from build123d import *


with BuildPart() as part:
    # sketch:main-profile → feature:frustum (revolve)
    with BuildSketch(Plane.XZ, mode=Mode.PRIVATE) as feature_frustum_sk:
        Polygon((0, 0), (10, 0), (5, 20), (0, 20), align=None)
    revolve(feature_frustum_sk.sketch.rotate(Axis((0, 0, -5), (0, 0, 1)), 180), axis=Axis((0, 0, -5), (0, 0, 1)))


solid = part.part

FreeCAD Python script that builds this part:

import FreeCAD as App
import Part
import Sketcher


def add_polygon(sketch, points):
    """Adds a closed chain of lines whose ends are joined by coincident constraints."""
    first, n = sketch.GeometryCount, len(points)
    for a, b in zip(points, points[1:] + points[:1]):
        sketch.addGeometry(Part.LineSegment(App.Vector(*a, 0), App.Vector(*b, 0)), False)
    for i in range(n):
        sketch.addConstraint(Sketcher.Constraint("Coincident", first + i, 2, first + (i + 1) % n, 1))

doc = App.newDocument("Part")
body = doc.addObject("PartDesign::Body", "Body")

sketch1 = body.newObject("Sketcher::SketchObject", "Sketch")
sketch1.AttachmentSupport = (doc.getObject("XZ_Plane"), [""])
sketch1.MapMode = "FlatFace"
add_polygon(sketch1, [(0, 0), (10, 0), (5, 20), (0, 20)])
sketch1.addConstraint(Sketcher.Constraint("Horizontal", 0))
sketch1.addConstraint(Sketcher.Constraint("Horizontal", 2))
sketch1.addConstraint(Sketcher.Constraint("Vertical", 3))
sketch1.addConstraint(Sketcher.Constraint("Coincident", 3, 2, -1, 1))
sketch1.addConstraint(Sketcher.Constraint("DistanceX", 0, 1, 0, 2, 10.0))
sketch1.addConstraint(Sketcher.Constraint("DistanceX", 2, 2, 2, 1, 5.0))
sketch1.addConstraint(Sketcher.Constraint("DistanceY", 3, 2, 3, 1, 20.0))
revolution = body.newObject("PartDesign::Revolution", "Revolution")
revolution.Profile = sketch1
revolution.ReferenceAxis = (sketch1, ["V_Axis"])
revolution.Angle = 360

doc.recompute()
